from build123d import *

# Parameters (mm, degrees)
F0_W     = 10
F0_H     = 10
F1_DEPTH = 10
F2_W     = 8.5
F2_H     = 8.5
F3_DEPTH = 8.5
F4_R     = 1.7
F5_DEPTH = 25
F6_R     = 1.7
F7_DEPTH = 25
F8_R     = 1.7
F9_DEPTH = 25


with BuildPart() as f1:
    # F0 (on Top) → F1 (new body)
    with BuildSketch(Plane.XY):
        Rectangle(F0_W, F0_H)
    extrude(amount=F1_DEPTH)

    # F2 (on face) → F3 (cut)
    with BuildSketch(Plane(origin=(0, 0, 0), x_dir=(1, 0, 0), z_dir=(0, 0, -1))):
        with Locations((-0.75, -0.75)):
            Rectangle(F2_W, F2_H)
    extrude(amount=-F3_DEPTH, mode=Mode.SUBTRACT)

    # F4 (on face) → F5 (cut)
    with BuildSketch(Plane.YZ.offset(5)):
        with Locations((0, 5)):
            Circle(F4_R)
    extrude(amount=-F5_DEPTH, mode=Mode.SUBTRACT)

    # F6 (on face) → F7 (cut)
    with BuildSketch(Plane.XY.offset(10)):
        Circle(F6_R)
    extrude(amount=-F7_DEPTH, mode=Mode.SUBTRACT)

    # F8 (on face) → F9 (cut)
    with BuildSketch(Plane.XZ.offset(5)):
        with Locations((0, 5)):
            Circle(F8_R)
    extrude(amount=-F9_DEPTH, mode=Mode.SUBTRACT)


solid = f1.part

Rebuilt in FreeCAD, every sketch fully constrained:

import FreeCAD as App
import Part
import Sketcher


def add_polygon(sketch, points):
    """Adds a closed chain of lines whose ends are joined by coincident constraints."""
    first, n = sketch.GeometryCount, len(points)
    for a, b in zip(points, points[1:] + points[:1]):
        sketch.addGeometry(Part.LineSegment(App.Vector(*a, 0), App.Vector(*b, 0)), False)
    for i in range(n):
        sketch.addConstraint(Sketcher.Constraint("Coincident", first + i, 2, first + (i + 1) % n, 1))

doc = App.newDocument("Part")
body = doc.addObject("PartDesign::Body", "Body")

sketch1 = doc.addObject("Sketcher::SketchObject", "Sketch")
body.addObject(sketch1)
sketch1.AttachmentSupport = (doc.XY_Plane, [""])
sketch1.MapMode = "FlatFace"
add_polygon(sketch1, [(-5, 5), (-5, -5), (5, -5), (5, 5)])
sketch1.addConstraint(Sketcher.Constraint("Vertical", 0))
sketch1.addConstraint(Sketcher.Constraint("Horizontal", 1))
sketch1.addConstraint(Sketcher.Constraint("Vertical", 2))
sketch1.addConstraint(Sketcher.Constraint("Horizontal", 3))
sketch1.addConstraint(Sketcher.Constraint("Symmetric", 0, 2, 2, 2, -1, 1))
sketch1.addConstraint(Sketcher.Constraint("Equal", 3, 0))
sketch1.addConstraint(Sketcher.Constraint("DistanceX", 1, 1, 1, 2, 10.0))
pad1 = doc.addObject("PartDesign::Pad", "Pad")
body.addObject(pad1)
pad1.Profile = sketch1
pad1.Length = 10

sketch2 = doc.addObject("Sketcher::SketchObject", "Sketch001")
body.addObject(sketch2)
sketch2.AttachmentSupport = (doc.XY_Plane, [""])
sketch2.MapMode = "FlatFace"
add_polygon(sketch2, [(-5, -4), (-5, 5), (4, 5), (4, -4)])
sketch2.addConstraint(Sketcher.Constraint("Vertical", 0))
sketch2.addConstraint(Sketcher.Constraint("Horizontal", 1))
sketch2.addConstraint(Sketcher.Constraint("Vertical", 2))
sketch2.addConstraint(Sketcher.Constraint("Horizontal", 3))
sketch2.addConstraint(Sketcher.Constraint("Equal", 3, 0))
sketch2.addConstraint(Sketcher.Constraint("DistanceX", 1, 1, 1, 2, 8.5))
sketch2.addConstraint(Sketcher.Constraint("DistanceX", 0, 2, -1, 1, 5.0))
sketch2.addConstraint(Sketcher.Constraint("DistanceY", -1, 1, 0, 2, 5.0))
pocket1 = doc.addObject("PartDesign::Pocket", "Pocket")
body.addObject(pocket1)
pocket1.Profile = sketch2
pocket1.Length = 8.5
pocket1.Reversed = True

sketch3 = doc.addObject("Sketcher::SketchObject", "Sketch002")
body.addObject(sketch3)
sketch3.AttachmentSupport = (doc.YZ_Plane, [""])
sketch3.MapMode = "FlatFace"
sketch3.AttachmentOffset = App.Placement(App.Vector(0, 0, 5), App.Rotation())
sketch3.addGeometry(Part.Circle(App.Vector(0, 5, 0), App.Vector(0, 0, 1), 1.7), False)
sketch3.addConstraint(Sketcher.Constraint("PointOnObject", 0, 3, -2))
sketch3.addConstraint(Sketcher.Constraint("Diameter", 0, 3.4))
sketch3.addConstraint(Sketcher.Constraint("DistanceY", -1, 1, 0, 3, 5.0))
pocket2 = doc.addObject("PartDesign::Pocket", "Pocket001")
body.addObject(pocket2)
pocket2.Profile = sketch3
pocket2.Length = 25

sketch4 = doc.addObject("Sketcher::SketchObject", "Sketch003")
body.addObject(sketch4)
sketch4.AttachmentSupport = (doc.XY_Plane, [""])
sketch4.MapMode = "FlatFace"
sketch4.AttachmentOffset = App.Placement(App.Vector(0, 0, 10), App.Rotation())
sketch4.addGeometry(Part.Circle(App.Vector(0, 0, 0), App.Vector(0, 0, 1), 1.7), False)
sketch4.addConstraint(Sketcher.Constraint("Coincident", 0, 3, -1, 1))
sketch4.addConstraint(Sketcher.Constraint("Diameter", 0, 3.4))
pocket3 = doc.addObject("PartDesign::Pocket", "Pocket002")
body.addObject(pocket3)
pocket3.Profile = sketch4
pocket3.Length = 25

sketch5 = doc.addObject("Sketcher::SketchObject", "Sketch004")
body.addObject(sketch5)
sketch5.AttachmentSupport = (doc.XZ_Plane, [""])
sketch5.MapMode = "FlatFace"
sketch5.AttachmentOffset = App.Placement(App.Vector(0, 0, 5), App.Rotation())
sketch5.addGeometry(Part.Circle(App.Vector(0, 5, 0), App.Vector(0, 0, 1), 1.7), False)
sketch5.addConstraint(Sketcher.Constraint("PointOnObject", 0, 3, -2))
sketch5.addConstraint(Sketcher.Constraint("Diameter", 0, 3.4))
sketch5.addConstraint(Sketcher.Constraint("DistanceY", -1, 1, 0, 3, 5.0))
pocket4 = doc.addObject("PartDesign::Pocket", "Pocket003")
body.addObject(pocket4)
pocket4.Profile = sketch5
pocket4.Length = 25

doc.recompute()
